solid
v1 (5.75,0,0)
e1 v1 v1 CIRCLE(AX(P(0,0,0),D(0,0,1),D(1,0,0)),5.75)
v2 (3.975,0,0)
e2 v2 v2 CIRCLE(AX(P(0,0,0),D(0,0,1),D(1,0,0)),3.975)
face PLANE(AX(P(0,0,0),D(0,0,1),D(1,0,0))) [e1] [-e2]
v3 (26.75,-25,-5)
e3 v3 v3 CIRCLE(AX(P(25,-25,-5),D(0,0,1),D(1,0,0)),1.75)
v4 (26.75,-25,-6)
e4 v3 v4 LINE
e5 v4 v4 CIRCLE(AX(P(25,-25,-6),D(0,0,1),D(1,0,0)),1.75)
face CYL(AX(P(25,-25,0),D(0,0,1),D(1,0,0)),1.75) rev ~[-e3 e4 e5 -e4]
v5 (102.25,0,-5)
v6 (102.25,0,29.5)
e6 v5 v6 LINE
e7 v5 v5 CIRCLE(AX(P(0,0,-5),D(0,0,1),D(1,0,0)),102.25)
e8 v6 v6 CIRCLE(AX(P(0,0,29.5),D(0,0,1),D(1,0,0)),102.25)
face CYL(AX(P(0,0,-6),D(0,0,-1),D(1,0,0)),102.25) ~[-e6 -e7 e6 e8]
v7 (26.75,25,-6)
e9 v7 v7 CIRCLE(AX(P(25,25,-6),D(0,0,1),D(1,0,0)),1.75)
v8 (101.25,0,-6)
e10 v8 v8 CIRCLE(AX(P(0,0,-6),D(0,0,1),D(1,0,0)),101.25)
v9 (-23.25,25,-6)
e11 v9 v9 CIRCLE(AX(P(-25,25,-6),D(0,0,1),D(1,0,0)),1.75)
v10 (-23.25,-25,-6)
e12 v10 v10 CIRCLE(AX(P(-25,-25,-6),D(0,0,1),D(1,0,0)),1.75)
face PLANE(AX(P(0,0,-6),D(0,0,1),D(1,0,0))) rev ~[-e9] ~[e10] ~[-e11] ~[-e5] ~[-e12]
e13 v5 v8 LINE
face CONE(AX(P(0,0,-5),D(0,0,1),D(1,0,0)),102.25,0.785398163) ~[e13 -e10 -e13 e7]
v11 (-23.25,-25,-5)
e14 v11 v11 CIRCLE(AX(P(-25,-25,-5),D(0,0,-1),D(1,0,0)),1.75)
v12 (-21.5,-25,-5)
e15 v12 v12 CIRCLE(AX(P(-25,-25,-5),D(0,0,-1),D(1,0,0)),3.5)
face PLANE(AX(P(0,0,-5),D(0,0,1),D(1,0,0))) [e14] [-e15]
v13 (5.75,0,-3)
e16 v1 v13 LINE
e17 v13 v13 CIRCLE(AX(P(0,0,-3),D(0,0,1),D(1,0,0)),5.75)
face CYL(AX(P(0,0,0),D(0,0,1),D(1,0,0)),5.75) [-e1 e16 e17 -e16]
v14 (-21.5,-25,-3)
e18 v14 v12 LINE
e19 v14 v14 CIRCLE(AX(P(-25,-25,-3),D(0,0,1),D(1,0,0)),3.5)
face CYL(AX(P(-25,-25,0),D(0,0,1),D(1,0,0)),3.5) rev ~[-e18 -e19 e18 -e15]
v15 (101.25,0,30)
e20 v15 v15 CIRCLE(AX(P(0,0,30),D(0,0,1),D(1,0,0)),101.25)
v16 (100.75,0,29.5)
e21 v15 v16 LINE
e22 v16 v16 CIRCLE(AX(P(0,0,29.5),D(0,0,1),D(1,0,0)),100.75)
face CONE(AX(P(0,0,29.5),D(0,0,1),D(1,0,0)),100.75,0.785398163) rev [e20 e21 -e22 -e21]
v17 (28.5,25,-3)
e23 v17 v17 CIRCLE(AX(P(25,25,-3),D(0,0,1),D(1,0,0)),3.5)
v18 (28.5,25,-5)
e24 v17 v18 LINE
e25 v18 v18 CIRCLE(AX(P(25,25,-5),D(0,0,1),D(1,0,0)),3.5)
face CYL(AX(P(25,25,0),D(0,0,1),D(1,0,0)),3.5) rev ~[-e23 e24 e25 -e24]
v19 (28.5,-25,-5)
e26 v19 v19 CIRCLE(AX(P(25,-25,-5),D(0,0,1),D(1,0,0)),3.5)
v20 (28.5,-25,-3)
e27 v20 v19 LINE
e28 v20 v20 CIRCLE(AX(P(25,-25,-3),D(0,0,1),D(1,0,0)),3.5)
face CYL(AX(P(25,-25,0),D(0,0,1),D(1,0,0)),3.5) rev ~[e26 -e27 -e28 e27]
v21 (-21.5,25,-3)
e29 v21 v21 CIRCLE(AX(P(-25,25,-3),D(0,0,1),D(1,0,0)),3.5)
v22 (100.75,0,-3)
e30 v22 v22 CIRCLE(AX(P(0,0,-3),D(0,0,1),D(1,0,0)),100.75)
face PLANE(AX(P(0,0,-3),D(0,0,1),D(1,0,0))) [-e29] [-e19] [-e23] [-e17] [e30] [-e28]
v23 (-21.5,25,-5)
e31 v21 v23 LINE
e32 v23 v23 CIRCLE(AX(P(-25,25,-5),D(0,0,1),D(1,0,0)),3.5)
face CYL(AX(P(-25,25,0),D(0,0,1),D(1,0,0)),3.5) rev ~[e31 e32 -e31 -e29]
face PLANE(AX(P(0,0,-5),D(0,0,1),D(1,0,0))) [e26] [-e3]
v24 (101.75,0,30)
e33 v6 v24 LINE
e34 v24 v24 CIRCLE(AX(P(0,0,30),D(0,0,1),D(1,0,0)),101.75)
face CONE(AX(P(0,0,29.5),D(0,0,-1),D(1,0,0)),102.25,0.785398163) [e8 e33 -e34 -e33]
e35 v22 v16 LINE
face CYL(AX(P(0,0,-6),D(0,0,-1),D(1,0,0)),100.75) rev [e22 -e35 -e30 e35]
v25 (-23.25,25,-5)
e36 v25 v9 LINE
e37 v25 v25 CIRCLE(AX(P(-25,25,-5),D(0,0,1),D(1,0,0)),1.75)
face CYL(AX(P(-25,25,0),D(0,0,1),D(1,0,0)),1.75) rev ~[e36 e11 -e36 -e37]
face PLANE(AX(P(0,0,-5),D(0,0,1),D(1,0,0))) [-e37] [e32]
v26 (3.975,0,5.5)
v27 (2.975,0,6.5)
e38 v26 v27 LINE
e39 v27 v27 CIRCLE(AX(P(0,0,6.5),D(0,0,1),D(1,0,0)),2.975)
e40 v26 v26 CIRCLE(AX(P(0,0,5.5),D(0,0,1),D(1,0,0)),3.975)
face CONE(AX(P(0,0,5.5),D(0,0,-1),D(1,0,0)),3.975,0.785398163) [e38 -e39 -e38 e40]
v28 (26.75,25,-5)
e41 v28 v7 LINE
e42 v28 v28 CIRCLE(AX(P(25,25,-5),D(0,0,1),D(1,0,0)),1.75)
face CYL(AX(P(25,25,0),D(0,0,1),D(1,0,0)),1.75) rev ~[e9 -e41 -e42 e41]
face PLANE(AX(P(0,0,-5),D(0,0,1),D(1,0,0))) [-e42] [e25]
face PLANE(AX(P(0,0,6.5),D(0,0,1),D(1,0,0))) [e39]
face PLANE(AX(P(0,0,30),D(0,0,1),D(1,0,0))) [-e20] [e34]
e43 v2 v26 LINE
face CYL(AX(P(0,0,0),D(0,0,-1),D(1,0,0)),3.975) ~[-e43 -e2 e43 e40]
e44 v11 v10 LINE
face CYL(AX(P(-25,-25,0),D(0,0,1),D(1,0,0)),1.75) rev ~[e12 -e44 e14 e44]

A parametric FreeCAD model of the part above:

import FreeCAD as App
import Part
import Sketcher

V = App.Vector


def edges_at(feature, points):
    """Names of the edges that pass closest to the given points."""
    edges = feature.Shape.Edges
    near = lambda p: min(range(len(edges)), key=lambda i: edges[i].distToShape(Part.Vertex(*p))[0])
    return sorted({f"Edge{near(p) + 1}" for p in points})

doc = App.newDocument("Part")
body = doc.addObject("PartDesign::Body", "Body")

# Sketch on XY plane
sketch1 = body.newObject("Sketcher::SketchObject", "Sketch")
sketch1.AttachmentSupport = (doc.getObject("XY_Plane"), [""])
sketch1.MapMode = "FlatFace"
sketch1.addGeometry(Part.Circle(V(0, 0, 0), V(0, 0, 1), 4), False)
sketch1.addConstraint([
    Sketcher.Constraint("Coincident", 0, 3, -1, 1),
    Sketcher.Constraint("Diameter", 0, 7.95),
])
pad1 = body.newObject("PartDesign::Pad", "Pad")
pad1.Profile = sketch1
pad1.Length = 6.5

# Sketch on XY plane
sketch2 = body.newObject("Sketcher::SketchObject", "Sketch001")
sketch2.AttachmentSupport = (doc.getObject("XY_Plane"), [""])
sketch2.MapMode = "FlatFace"
sketch2.addGeometry(Part.Circle(V(0, 0, 0), V(0, 0, 1), 6), False)
sketch2.addConstraint([
    Sketcher.Constraint("Coincident", 0, 3, -1, 1),
    Sketcher.Constraint("Diameter", 0, 11.5),
])
pad2 = body.newObject("PartDesign::Pad", "Pad001")
pad2.Profile = sketch2
pad2.Length = 3
pad2.Reversed = True

# Sketch on XY plane
sketch3 = body.newObject("Sketcher::SketchObject", "Sketch002")
sketch3.AttachmentSupport = (doc.getObject("XY_Plane"), [""])
sketch3.MapMode = "FlatFace"
sketch3.AttachmentOffset = App.Placement(V(0, 0, -3), App.Rotation())
sketch3.addGeometry(Part.Circle(V(0, 0, 0), V(0, 0, 1), 101), False)
sketch3.addConstraint([
    Sketcher.Constraint("Coincident", 0, 3, -1, 1),
    Sketcher.Constraint("Diameter", 0, 201.5),
])
pad3 = body.newObject("PartDesign::Pad", "Pad002")
pad3.Profile = sketch3
pad3.Length = 3
pad3.Reversed = True

# Sketch on XY plane
sketch4 = body.newObject("Sketcher::SketchObject", "Sketch003")
sketch4.AttachmentSupport = (doc.getObject("XY_Plane"), [""])
sketch4.MapMode = "FlatFace"
sketch4.AttachmentOffset = App.Placement(V(0, 0, -6), App.Rotation())
sketch4.addGeometry([
    Part.Circle(V(0, 0, 0), V(0, 0, 1), 102),
    Part.Circle(V(0, 0, 0), V(0, 0, 1), 101),
], False)
sketch4.addConstraint([
    Sketcher.Constraint("Coincident", 0, 3, -1, 1),
    Sketcher.Constraint("Coincident", 1, 3, -1, 1),
    Sketcher.Constraint("Diameter", 0, 204.5),
    Sketcher.Constraint("Diameter", 1, 201.5),
])
pad4 = body.newObject("PartDesign::Pad", "Pad003")
pad4.Profile = sketch4
pad4.Length = 68
doc.recompute()

chamfer = body.newObject("PartDesign::Chamfer", "Chamfer")
chamfer.Base = (pad4, edges_at(pad4, [(-3.706, -1.437, 6.5)]))
chamfer.Size = 1
doc.recompute()

chamfer2 = body.newObject("PartDesign::Chamfer", "Chamfer001")
chamfer2.Base = (chamfer, edges_at(chamfer, [(-95.331, -36.975, 62), (-93.932, 36.433, 62)]))
chamfer2.Size = 0.5
doc.recompute()

chamfer3 = body.newObject("PartDesign::Chamfer", "Chamfer002")
chamfer3.Base = (chamfer2, edges_at(chamfer2, [(-95.331, -36.975, -6)]))
chamfer3.Size = 1

# Sketch on XY plane
sketch5 = body.newObject("Sketcher::SketchObject", "Sketch004")
sketch5.AttachmentSupport = (doc.getObject("XY_Plane"), [""])
sketch5.MapMode = "FlatFace"
sketch5.addGeometry([
    Part.Circle(V(-25, -25, 0), V(0, 0, 1), 1.8),
    Part.Circle(V(25, -25, 0), V(0, 0, 1), 1.8),
    Part.Circle(V(-25, 25, 0), V(0, 0, 1), 1.8),
    Part.Circle(V(25, 25, 0), V(0, 0, 1), 1.8),
], False)
sketch5.addConstraint([
    Sketcher.Constraint("Equal", 0, 1),
    Sketcher.Constraint("Equal", 1, 2),
    Sketcher.Constraint("Equal", 2, 3),
    Sketcher.Constraint("Symmetric", 1, 3, 2, 3, -1, 1),
    Sketcher.Constraint("Symmetric", 0, 3, 3, 3, -1, 1),
    Sketcher.Constraint("Symmetric", 0, 3, 1, 3, -2),
    Sketcher.Constraint("Diameter", 0, 3.5),
    Sketcher.Constraint("DistanceX", 0, 3, 1, 3, 50.0),
    Sketcher.Constraint("DistanceY", 0, 3, 2, 3, 50.0),
])
pocket1 = body.newObject("PartDesign::Pocket", "Pocket")
pocket1.Profile = sketch5
pocket1.Length = 15

# Sketch on XY plane
sketch6 = body.newObject("Sketcher::SketchObject", "Sketch005")
sketch6.AttachmentSupport = (doc.getObject("XY_Plane"), [""])
sketch6.MapMode = "FlatFace"
sketch6.addGeometry([
    Part.Circle(V(-25, -25, 0), V(0, 0, 1), 3.5),  # 0
    Part.Circle(V(-25, -25, 0), V(0, 0, 1), 1.8),  # 1
    Part.Circle(V(25, -25, 0), V(0, 0, 1), 3.5),  # 2
    Part.Circle(V(25, -25, 0), V(0, 0, 1), 1.8),  # 3
    Part.Circle(V(-25, 25, 0), V(0, 0, 1), 3.5),  # 4
    Part.Circle(V(-25, 25, 0), V(0, 0, 1), 1.8),  # 5
    Part.Circle(V(25, 25, 0), V(0, 0, 1), 3.5),  # 6
    Part.Circle(V(25, 25, 0), V(0, 0, 1), 1.8),  # 7
], False)
sketch6.addConstraint([
    Sketcher.Constraint("Coincident", 1, 3, 0, 3),
    Sketcher.Constraint("Coincident", 3, 3, 2, 3),
    Sketcher.Constraint("Coincident", 5, 3, 4, 3),
    Sketcher.Constraint("Coincident", 7, 3, 6, 3),
    Sketcher.Constraint("Equal", 0, 2),
    Sketcher.Constraint("Equal", 1, 3),
    Sketcher.Constraint("Equal", 2, 4),
    Sketcher.Constraint("Equal", 3, 5),
    Sketcher.Constraint("Equal", 4, 6),
    Sketcher.Constraint("Equal", 5, 7),
    Sketcher.Constraint("Symmetric", 2, 3, 4, 3, -1, 1),
    Sketcher.Constraint("Symmetric", 0, 3, 6, 3, -1, 1),
    Sketcher.Constraint("Symmetric", 0, 3, 2, 3, -2),
    Sketcher.Constraint("Diameter", 0, 7.0),
    Sketcher.Constraint("Diameter", 1, 3.5),
    Sketcher.Constraint("DistanceX", 0, 3, 2, 3, 50.0),
    Sketcher.Constraint("DistanceY", 0, 3, 4, 3, 50.0),
])
pocket2 = body.newObject("PartDesign::Pocket", "Pocket001")
pocket2.Profile = sketch6
pocket2.Length = 5

# Sketch on XY plane
sketch7 = body.newObject("Sketcher::SketchObject", "Sketch006")
sketch7.AttachmentSupport = (doc.getObject("XY_Plane"), [""])
sketch7.MapMode = "FlatFace"
sketch7.AttachmentOffset = App.Placement(V(0, 0, 30), App.Rotation())
sketch7.addGeometry([
    Part.Circle(V(0, 0, 0), V(0, 0, 1), 102),
    Part.Circle(V(0, 0, 0), V(0, 0, 1), 101),
], False)
sketch7.addConstraint([
    Sketcher.Constraint("Coincident", 0, 3, -1, 1),
    Sketcher.Constraint("Coincident", 1, 3, -1, 1),
    Sketcher.Constraint("Diameter", 0, 204.5),
    Sketcher.Constraint("Diameter", 1, 201.5),
])
pocket3 = body.newObject("PartDesign::Pocket", "Pocket002")
pocket3.Profile = sketch7
pocket3.Length = 45
pocket3.Reversed = True
doc.recompute()

chamfer4 = body.newObject("PartDesign::Chamfer", "Chamfer003")
chamfer4.Base = (pocket3, edges_at(pocket3, [(-93.932, -36.433, 30), (-95.331, 36.975, 30)]))
chamfer4.Size = 0.5

doc.recompute()
